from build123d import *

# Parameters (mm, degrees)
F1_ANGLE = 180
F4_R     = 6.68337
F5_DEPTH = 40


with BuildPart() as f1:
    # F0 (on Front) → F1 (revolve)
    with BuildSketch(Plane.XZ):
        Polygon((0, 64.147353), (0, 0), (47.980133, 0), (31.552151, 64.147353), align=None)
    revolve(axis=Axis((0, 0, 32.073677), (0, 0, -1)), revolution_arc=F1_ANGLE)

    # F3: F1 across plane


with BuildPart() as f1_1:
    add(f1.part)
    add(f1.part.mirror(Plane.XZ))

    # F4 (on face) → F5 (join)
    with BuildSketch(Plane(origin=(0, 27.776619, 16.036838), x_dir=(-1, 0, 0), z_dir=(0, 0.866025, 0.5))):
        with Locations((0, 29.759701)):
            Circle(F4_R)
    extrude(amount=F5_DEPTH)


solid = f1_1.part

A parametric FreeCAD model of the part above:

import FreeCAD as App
import Part
import Sketcher

V = App.Vector
Q = App.Units.Quantity

doc = App.newDocument("Part")
body = doc.addObject("PartDesign::Body", "Body")

# Sketch on XZ plane
sketch1 = doc.addObject("Sketcher::SketchObject", "Sketch")
body.addObject(sketch1)
sketch1.AttachmentSupport = (doc.XZ_Plane, [""])
sketch1.MapMode = "FlatFace"
sketch1.addGeometry([
    Part.LineSegment(V(0, 64, 0), V(0, 0, 0)),
    Part.LineSegment(V(0, 0, 0), V(48, 0, 0)),
    Part.LineSegment(V(48, 0, 0), V(32, 64, 0)),
    Part.LineSegment(V(32, 64, 0), V(0, 64, 0)),
], False)
sketch1.addConstraint([
    Sketcher.Constraint("Coincident", 0, 2, 1, 1),
    Sketcher.Constraint("Coincident", 1, 2, 2, 1),
    Sketcher.Constraint("Coincident", 2, 2, 3, 1),
    Sketcher.Constraint("Coincident", 3, 2, 0, 1),
    Sketcher.Constraint("Vertical", 0),
    Sketcher.Constraint("Horizontal", 1),
    Sketcher.Constraint("Horizontal", 3),
    Sketcher.Constraint("Coincident", 0, 2, -1, 1),
    Sketcher.Constraint("DistanceX", 3, 2, 3, 1, Q("31.552151 mm")),
    Sketcher.Constraint("Distance", 2, Q("66.217532 mm")),
    Sketcher.Constraint("DistanceX", 1, 1, 1, 2, Q("47.980133 mm")),
])
revolution = doc.addObject("PartDesign::Revolution", "Revolution")
body.addObject(revolution)
revolution.Profile = sketch1
revolution.ReferenceAxis = (sketch1, ["V_Axis"])
revolution.Angle = 180
revolution.Reversed = True
body2 = doc.addObject("PartDesign::Body", "Body001")
doc.recompute()

body2.BaseFeature = body
doc.recompute()

mirroring = doc.addObject("Part::Mirroring", "Mirroring")
mirroring.Source = body
mirroring.Base = V(0, 0, 0)
mirroring.Normal = V(0, -1, 0)
body3 = doc.addObject("PartDesign::Body", "Body002")
body3.BaseFeature = mirroring
boolean = doc.addObject("PartDesign::Boolean", "Boolean")
body2.addObject(boolean)
boolean.Type = "Fuse"
boolean.addObjects([body3])
doc.recompute()

# Sketch on an angled plane
sketch2 = doc.addObject("Sketcher::SketchObject", "Sketch001")
body2.addObject(sketch2)
sketch2.Placement = App.Placement(V(0, 27.776619, 16.036838), App.Rotation(V(-1, 0, 0), V(0, -0.500000175, 0.866025303), V(0, 0.866025303, 0.500000175), "ZXY"))
sketch2.addGeometry(Part.Circle(V(0, 30, 0), V(0, 0, 1), 7), False)
sketch2.addConstraint([
    Sketcher.Constraint("PointOnObject", 0, 3, -2),
    Sketcher.Constraint("Diameter", 0, Q("13.36674 mm")),
    Sketcher.Constraint("DistanceY", -1, 1, 0, 3, Q("29.759701 mm")),
])
pad1 = doc.addObject("PartDesign::Pad", "Pad")
body2.addObject(pad1)
pad1.Profile = sketch2
pad1.Length = 40
mirroring.Visibility = False

doc.recompute()
